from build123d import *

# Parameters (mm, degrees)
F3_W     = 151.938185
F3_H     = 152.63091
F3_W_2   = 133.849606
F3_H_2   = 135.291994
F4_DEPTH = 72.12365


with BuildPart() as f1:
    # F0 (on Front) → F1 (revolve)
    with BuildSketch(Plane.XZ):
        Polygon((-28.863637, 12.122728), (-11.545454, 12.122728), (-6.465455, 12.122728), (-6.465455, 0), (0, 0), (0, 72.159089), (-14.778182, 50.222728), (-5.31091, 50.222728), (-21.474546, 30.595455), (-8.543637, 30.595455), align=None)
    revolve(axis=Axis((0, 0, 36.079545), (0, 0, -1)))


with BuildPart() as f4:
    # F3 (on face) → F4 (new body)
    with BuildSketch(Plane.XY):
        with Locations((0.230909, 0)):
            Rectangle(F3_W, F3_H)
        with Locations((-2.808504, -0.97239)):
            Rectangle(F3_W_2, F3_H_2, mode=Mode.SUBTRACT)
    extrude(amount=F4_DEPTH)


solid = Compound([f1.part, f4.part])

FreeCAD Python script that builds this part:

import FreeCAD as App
import Part
import Sketcher
from FreeCAD import Vector

doc = App.newDocument("Part")
body = doc.addObject("PartDesign::Body", "Body")

sketch1 = doc.addObject("Sketcher::SketchObject", "Sketch")
body.addObject(sketch1)
sketch1.AttachmentSupport = (doc.XZ_Plane, [""])
sketch1.MapMode = "FlatFace"
sketch1.addGeometry(Part.LineSegment(Vector(-29, 12, 0), Vector(-6, 12, 0)), False)
sketch1.addGeometry(Part.LineSegment(Vector(-6, 12, 0), Vector(-6, 0, 0)), False)
sketch1.addGeometry(Part.LineSegment(Vector(-6, 0, 0), Vector(0, 0, 0)), False)
sketch1.addGeometry(Part.LineSegment(Vector(0, 0, 0), Vector(0, 72, 0)), False)
sketch1.addGeometry(Part.LineSegment(Vector(0, 72, 0), Vector(-15, 50, 0)), False)
sketch1.addGeometry(Part.LineSegment(Vector(-15, 50, 0), Vector(-5, 50, 0)), False)
sketch1.addGeometry(Part.LineSegment(Vector(-5, 50, 0), Vector(-21, 31, 0)), False)
sketch1.addGeometry(Part.LineSegment(Vector(-21, 31, 0), Vector(-9, 31, 0)), False)
sketch1.addGeometry(Part.LineSegment(Vector(-9, 31, 0), Vector(-29, 12, 0)), False)
sketch1.addConstraint(Sketcher.Constraint("Coincident", 0, 2, 1, 1))
sketch1.addConstraint(Sketcher.Constraint("Coincident", 1, 2, 2, 1))
sketch1.addConstraint(Sketcher.Constraint("Coincident", 2, 2, 3, 1))
sketch1.addConstraint(Sketcher.Constraint("Coincident", 3, 2, 4, 1))
sketch1.addConstraint(Sketcher.Constraint("Coincident", 4, 2, 5, 1))
sketch1.addConstraint(Sketcher.Constraint("Coincident", 5, 2, 6, 1))
sketch1.addConstraint(Sketcher.Constraint("Coincident", 6, 2, 7, 1))
sketch1.addConstraint(Sketcher.Constraint("Coincident", 7, 2, 8, 1))
sketch1.addConstraint(Sketcher.Constraint("Coincident", 8, 2, 0, 1))
sketch1.addConstraint(Sketcher.Constraint("Horizontal", 0))
sketch1.addConstraint(Sketcher.Constraint("Vertical", 1))
sketch1.addConstraint(Sketcher.Constraint("Horizontal", 2))
sketch1.addConstraint(Sketcher.Constraint("Vertical", 3))
sketch1.addConstraint(Sketcher.Constraint("Horizontal", 5))
sketch1.addConstraint(Sketcher.Constraint("Horizontal", 7))
sketch1.addConstraint(Sketcher.Constraint("Coincident", 2, 2, -1, 1))
sketch1.addConstraint(Sketcher.Constraint("DistanceY", 0, 2, 4, 2, 38.1))
sketch1.addConstraint(Sketcher.Constraint("DistanceX", 8, 2, 7, 2, 20.32))
sketch1.addConstraint(Sketcher.Constraint("DistanceX", 0, 1, 0, 2, 22.398182))
sketch1.addConstraint(Sketcher.Constraint("DistanceX", 7, 1, 7, 2, 12.930909))
sketch1.addConstraint(Sketcher.Constraint("DistanceY", 3, 1, 3, 2, 72.159089))
sketch1.addConstraint(Sketcher.Constraint("DistanceX", 2, 1, 2, 2, 6.465455))
sketch1.addConstraint(Sketcher.Constraint("DistanceX", 5, 1, 5, 2, 9.467272))
sketch1.addConstraint(Sketcher.Constraint("DistanceY", 1, 2, 1, 1, 12.122728))
sketch1.addConstraint(Sketcher.Constraint("DistanceX", 4, 2, -1, 1, 14.778182))
sketch1.addConstraint(Sketcher.Constraint("Distance", 6, 25.426226))
revolution = doc.addObject("PartDesign::Revolution", "Revolution")
body.addObject(revolution)
revolution.Profile = sketch1
revolution.ReferenceAxis = (sketch1, ["V_Axis"])
revolution.Angle = 360
body2 = doc.addObject("PartDesign::Body", "Body001")

sketch2 = doc.addObject("Sketcher::SketchObject", "Sketch001")
body2.addObject(sketch2)
sketch2.AttachmentSupport = (doc.getObject("XY_Plane001"), [""])
sketch2.MapMode = "FlatFace"
sketch2.addGeometry(Part.LineSegment(Vector(-76, 76, 0), Vector(-76, -76, 0)), False)
sketch2.addGeometry(Part.LineSegment(Vector(-76, -76, 0), Vector(76, -76, 0)), False)
sketch2.addGeometry(Part.LineSegment(Vector(76, -76, 0), Vector(76, 76, 0)), False)
sketch2.addGeometry(Part.LineSegment(Vector(76, 76, 0), Vector(-76, 76, 0)), False)
sketch2.addGeometry(Part.LineSegment(Vector(64, -69, 0), Vector(-70, -69, 0)), False)
sketch2.addGeometry(Part.LineSegment(Vector(-70, -69, 0), Vector(-70, 67, 0)), False)
sketch2.addGeometry(Part.LineSegment(Vector(-70, 67, 0), Vector(64, 67, 0)), False)
sketch2.addGeometry(Part.LineSegment(Vector(64, 67, 0), Vector(64, -69, 0)), False)
sketch2.addConstraint(Sketcher.Constraint("Coincident", 0, 2, 1, 1))
sketch2.addConstraint(Sketcher.Constraint("Coincident", 1, 2, 2, 1))
sketch2.addConstraint(Sketcher.Constraint("Coincident", 2, 2, 3, 1))
sketch2.addConstraint(Sketcher.Constraint("Coincident", 3, 2, 0, 1))
sketch2.addConstraint(Sketcher.Constraint("Coincident", 4, 2, 5, 1))
sketch2.addConstraint(Sketcher.Constraint("Coincident", 5, 2, 6, 1))
sketch2.addConstraint(Sketcher.Constraint("Coincident", 6, 2, 7, 1))
sketch2.addConstraint(Sketcher.Constraint("Coincident", 7, 2, 4, 1))
sketch2.addConstraint(Sketcher.Constraint("Vertical", 0))
sketch2.addConstraint(Sketcher.Constraint("Horizontal", 1))
sketch2.addConstraint(Sketcher.Constraint("Vertical", 2))
sketch2.addConstraint(Sketcher.Constraint("Horizontal", 3))
sketch2.addConstraint(Sketcher.Constraint("Horizontal", 4))
sketch2.addConstraint(Sketcher.Constraint("Vertical", 5))
sketch2.addConstraint(Sketcher.Constraint("Horizontal", 6))
sketch2.addConstraint(Sketcher.Constraint("Vertical", 7))
sketch2.addConstraint(Sketcher.Constraint("DistanceX", -1, 1, 1, 2, 76.200001))
sketch2.addConstraint(Sketcher.Constraint("DistanceY", 0, 2, 0, 1, 152.63091))
sketch2.addConstraint(Sketcher.Constraint("DistanceX", -1, 1, 6, 2, 64.116299))
sketch2.addConstraint(Sketcher.Constraint("DistanceX", 1, 1, 1, 2, 151.938185))
sketch2.addConstraint(Sketcher.Constraint("DistanceX", 4, 2, 4, 1, 133.849606))
sketch2.addConstraint(Sketcher.Constraint("DistanceY", 5, 1, 5, 2, 135.291994))
sketch2.addConstraint(Sketcher.Constraint("DistanceY", 0, 2, 4, 2, 7.697068))
sketch2.addConstraint(Sketcher.Constraint("DistanceY", 0, 2, -1, 1, 76.315455))
pad1 = doc.addObject("PartDesign::Pad", "Pad")
body2.addObject(pad1)
pad1.Profile = sketch2
pad1.Length = 72.12365

doc.recompute()
